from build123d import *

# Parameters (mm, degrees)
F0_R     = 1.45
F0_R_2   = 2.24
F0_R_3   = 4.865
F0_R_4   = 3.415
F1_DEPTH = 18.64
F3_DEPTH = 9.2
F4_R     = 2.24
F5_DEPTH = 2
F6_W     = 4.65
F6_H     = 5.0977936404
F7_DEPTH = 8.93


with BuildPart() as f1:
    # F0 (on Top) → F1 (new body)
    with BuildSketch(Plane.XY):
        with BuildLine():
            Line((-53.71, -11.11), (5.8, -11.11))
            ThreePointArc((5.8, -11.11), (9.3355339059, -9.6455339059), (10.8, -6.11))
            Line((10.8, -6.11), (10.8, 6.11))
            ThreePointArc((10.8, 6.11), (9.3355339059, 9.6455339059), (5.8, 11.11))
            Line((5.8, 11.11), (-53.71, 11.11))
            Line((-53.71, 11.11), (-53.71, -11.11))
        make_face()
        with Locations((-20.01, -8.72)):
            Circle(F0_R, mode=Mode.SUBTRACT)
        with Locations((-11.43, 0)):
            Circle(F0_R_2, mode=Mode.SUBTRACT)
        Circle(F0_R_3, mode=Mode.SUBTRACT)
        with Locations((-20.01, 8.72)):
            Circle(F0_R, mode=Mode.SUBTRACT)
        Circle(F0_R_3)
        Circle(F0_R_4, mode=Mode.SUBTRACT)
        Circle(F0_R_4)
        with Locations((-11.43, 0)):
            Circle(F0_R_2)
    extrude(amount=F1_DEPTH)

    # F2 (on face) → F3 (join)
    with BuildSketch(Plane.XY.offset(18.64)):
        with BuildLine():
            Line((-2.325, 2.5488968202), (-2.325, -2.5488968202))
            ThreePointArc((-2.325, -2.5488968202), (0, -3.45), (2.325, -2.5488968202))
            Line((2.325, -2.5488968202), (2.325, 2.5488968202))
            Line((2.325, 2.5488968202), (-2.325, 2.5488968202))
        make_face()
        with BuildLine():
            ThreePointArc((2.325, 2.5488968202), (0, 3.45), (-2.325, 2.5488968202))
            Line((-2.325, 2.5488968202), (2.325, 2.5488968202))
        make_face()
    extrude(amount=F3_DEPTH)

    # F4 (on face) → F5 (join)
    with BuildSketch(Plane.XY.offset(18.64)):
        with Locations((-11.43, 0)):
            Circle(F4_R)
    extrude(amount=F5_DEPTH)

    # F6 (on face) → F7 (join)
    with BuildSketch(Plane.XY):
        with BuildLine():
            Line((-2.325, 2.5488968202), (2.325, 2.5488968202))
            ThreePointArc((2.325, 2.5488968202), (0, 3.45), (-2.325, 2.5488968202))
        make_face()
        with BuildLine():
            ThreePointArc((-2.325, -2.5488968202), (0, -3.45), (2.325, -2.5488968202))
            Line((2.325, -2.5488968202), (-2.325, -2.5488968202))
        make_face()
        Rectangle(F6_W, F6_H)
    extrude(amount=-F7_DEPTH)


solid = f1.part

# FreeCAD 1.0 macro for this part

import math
import FreeCAD as App
import Part
import Sketcher

doc = App.newDocument("Part")
params = doc.addObject("Spreadsheet::Sheet", "Params")
for row, (alias, value) in enumerate([
    ("sketch1_radius", "5 mm"),
    ("sketch1_diameter", "2.9 mm"),
    ("sketch1_width", "59.51 mm"),
    ("sketch1_height", "12.22 mm"),
    ("pad1_length", "18.64 mm"),
    ("sketch2_radius", "3.45 mm"),
    ("pad2_length", "9.2 mm"),
    ("sketch3_diameter", "4.48 mm"),
    ("pad3_length", "2 mm"),
    ("sketch4_radius", "3.45 mm"),
    ("pad4_length", "8.93 mm"),
], start=1):
    params.set(f"A{row}", alias)
    params.set(f"B{row}", "=" + value)
    params.setAlias(f"B{row}", alias)

body = doc.addObject("PartDesign::Body", "Body")

sketch1 = body.newObject("Sketcher::SketchObject", "Sketch")
sketch1.AttachmentSupport = (doc.getObject("XY_Plane"), [""])
sketch1.MapMode = "FlatFace"
sketch1.addGeometry(Part.LineSegment(App.Vector(-53.7, -11.1, 0), App.Vector(5.8, -11.1, 0)), False)
sketch1.addGeometry(Part.ArcOfCircle(Part.Circle(App.Vector(5.8, -6.1, 0), App.Vector(0, 0, 1), 5), math.radians(-90), math.radians(0)), False)
sketch1.addGeometry(Part.LineSegment(App.Vector(10.8, -6.1, 0), App.Vector(10.8, 6.1, 0)), False)
sketch1.addGeometry(Part.ArcOfCircle(Part.Circle(App.Vector(5.8, 6.1, 0), App.Vector(0, 0, 1), 5), math.radians(0), math.radians(90)), False)
sketch1.addGeometry(Part.LineSegment(App.Vector(5.8, 11.1, 0), App.Vector(-53.7, 11.1, 0)), False)
sketch1.addGeometry(Part.LineSegment(App.Vector(-53.7, 11.1, 0), App.Vector(-53.7, -11.1, 0)), False)
sketch1.addGeometry(Part.Circle(App.Vector(-20, -8.7, 0), App.Vector(0, 0, 1), 1.4), False)
sketch1.addGeometry(Part.Circle(App.Vector(-20, 8.7, 0), App.Vector(0, 0, 1), 1.4), False)
sketch1.addConstraint(Sketcher.Constraint("Tangent", 0, 2, 1, 1))
sketch1.addConstraint(Sketcher.Constraint("Tangent", 1, 2, 2, 1))
sketch1.addConstraint(Sketcher.Constraint("Tangent", 2, 2, 3, 1))
sketch1.addConstraint(Sketcher.Constraint("Tangent", 3, 2, 4, 1))
sketch1.addConstraint(Sketcher.Constraint("Coincident", 4, 2, 5, 1))
sketch1.addConstraint(Sketcher.Constraint("Coincident", 5, 2, 0, 1))
sketch1.addConstraint(Sketcher.Constraint("Horizontal", 0))
sketch1.addConstraint(Sketcher.Constraint("Vertical", 2))
sketch1.addConstraint(Sketcher.Constraint("Horizontal", 4))
sketch1.addConstraint(Sketcher.Constraint("Vertical", 5))
sketch1.addConstraint(Sketcher.Constraint("Equal", 1, 3))
sketch1.addConstraint(Sketcher.Constraint("Equal", 6, 7))
sketch1.addConstraint(Sketcher.Constraint("Symmetric", 6, 3, 7, 3, -1))
sketch1.addConstraint(Sketcher.Constraint("Radius", 1, 5.0))
sketch1.addConstraint(Sketcher.Constraint("Diameter", 6, 2.9))
sketch1.addConstraint(Sketcher.Constraint("DistanceX", 0, 1, 0, 2, 59.51))
sketch1.addConstraint(Sketcher.Constraint("DistanceY", 2, 1, 2, 2, 12.22))
sketch1.addConstraint(Sketcher.Constraint("DistanceX", -1, 1, 1, 3, 5.8))
sketch1.addConstraint(Sketcher.Constraint("DistanceX", 4, 2, 7, 3, 33.7))
sketch1.addConstraint(Sketcher.Constraint("DistanceY", 1, 3, -1, 1, 6.11))
sketch1.addConstraint(Sketcher.Constraint("DistanceY", 6, 3, -1, 1, 8.72))
sketch1.setExpression("Constraints[13]", "Params.sketch1_radius")
sketch1.setExpression("Constraints[14]", "Params.sketch1_diameter")
sketch1.setExpression("Constraints[15]", "Params.sketch1_width")
sketch1.setExpression("Constraints[16]", "Params.sketch1_height")
pad1 = body.newObject("PartDesign::Pad", "Pad")
pad1.Profile = sketch1
pad1.setExpression("Length", "Params.pad1_length")

sketch2 = body.newObject("Sketcher::SketchObject", "Sketch001")
sketch2.AttachmentSupport = (doc.getObject("XY_Plane"), [""])
sketch2.MapMode = "FlatFace"
sketch2.AttachmentOffset = App.Placement(App.Vector(0, 0, 18.64), App.Rotation())
sketch2.addGeometry(Part.LineSegment(App.Vector(-2.3, 2.5, 0), App.Vector(-2.3, -2.5, 0)), False)
sketch2.addGeometry(Part.ArcOfCircle(Part.Circle(App.Vector(0, 0, 0), App.Vector(0, 0, 1), 3.5), math.radians(-132), math.radians(-48)), False)
sketch2.addGeometry(Part.LineSegment(App.Vector(2.3, -2.5, 0), App.Vector(2.3, 2.5, 0)), False)
sketch2.addGeometry(Part.ArcOfCircle(Part.Circle(App.Vector(0, 0, 0), App.Vector(0, 0, 1), 3.5), math.radians(48), math.radians(132)), False)
sketch2.addConstraint(Sketcher.Constraint("Coincident", 0, 2, 1, 1))
sketch2.addConstraint(Sketcher.Constraint("Coincident", 1, 2, 2, 1))
sketch2.addConstraint(Sketcher.Constraint("Coincident", 2, 2, 3, 1))
sketch2.addConstraint(Sketcher.Constraint("Coincident", 3, 2, 0, 1))
sketch2.addConstraint(Sketcher.Constraint("Vertical", 0))
sketch2.addConstraint(Sketcher.Constraint("Vertical", 2))
sketch2.addConstraint(Sketcher.Constraint("Coincident", 1, 3, -1, 1))
sketch2.addConstraint(Sketcher.Constraint("Coincident", 3, 3, -1, 1))
sketch2.addConstraint(Sketcher.Constraint("Equal", 1, 3))
sketch2.addConstraint(Sketcher.Constraint("Horizontal", 0, 2, 1, 2))
sketch2.addConstraint(Sketcher.Constraint("Radius", 1, 3.45))
sketch2.addConstraint(Sketcher.Constraint("DistanceX", 0, 2, 1, 2, 4.65))
sketch2.setExpression("Constraints[10]", "Params.sketch2_radius")
pad2 = body.newObject("PartDesign::Pad", "Pad001")
pad2.Profile = sketch2
pad2.setExpression("Length", "Params.pad2_length")

sketch3 = body.newObject("Sketcher::SketchObject", "Sketch002")
sketch3.AttachmentSupport = (doc.getObject("XY_Plane"), [""])
sketch3.MapMode = "FlatFace"
sketch3.AttachmentOffset = App.Placement(App.Vector(0, 0, 18.64), App.Rotation())
sketch3.addGeometry(Part.Circle(App.Vector(-11.4, 0, 0), App.Vector(0, 0, 1), 2.2), False)
sketch3.addConstraint(Sketcher.Constraint("PointOnObject", 0, 3, -1))
sketch3.addConstraint(Sketcher.Constraint("Diameter", 0, 4.48))
sketch3.addConstraint(Sketcher.Constraint("DistanceX", 0, 3, -1, 1, 11.43))
sketch3.setExpression("Constraints[1]", "Params.sketch3_diameter")
pad3 = body.newObject("PartDesign::Pad", "Pad002")
pad3.Profile = sketch3
pad3.setExpression("Length", "Params.pad3_length")

sketch4 = body.newObject("Sketcher::SketchObject", "Sketch003")
sketch4.AttachmentSupport = (doc.getObject("XY_Plane"), [""])
sketch4.MapMode = "FlatFace"
sketch4.addGeometry(Part.ArcOfCircle(Part.Circle(App.Vector(0, 0, 0), App.Vector(0, 0, 1), 3.5), math.radians(48), math.radians(132)), False)
sketch4.addGeometry(Part.LineSegment(App.Vector(-2.3, 2.5, 0), App.Vector(-2.3, -2.5, 0)), False)
sketch4.addGeometry(Part.ArcOfCircle(Part.Circle(App.Vector(0, 0, 0), App.Vector(0, 0, 1), 3.5), math.radians(-132), math.radians(-48)), False)
sketch4.addGeometry(Part.LineSegment(App.Vector(2.3, -2.5, 0), App.Vector(2.3, 2.5, 0)), False)
sketch4.addConstraint(Sketcher.Constraint("Coincident", 0, 2, 1, 1))
sketch4.addConstraint(Sketcher.Constraint("Coincident", 1, 2, 2, 1))
sketch4.addConstraint(Sketcher.Constraint("Coincident", 2, 2, 3, 1))
sketch4.addConstraint(Sketcher.Constraint("Coincident", 3, 2, 0, 1))
sketch4.addConstraint(Sketcher.Constraint("Vertical", 1))
sketch4.addConstraint(Sketcher.Constraint("Vertical", 3))
sketch4.addConstraint(Sketcher.Constraint("Coincident", 0, 3, -1, 1))
sketch4.addConstraint(Sketcher.Constraint("Coincident", 2, 3, -1, 1))
sketch4.addConstraint(Sketcher.Constraint("Equal", 0, 2))
sketch4.addConstraint(Sketcher.Constraint("Horizontal", 1, 2, 2, 2))
sketch4.addConstraint(Sketcher.Constraint("Radius", 0, 3.45))
sketch4.addConstraint(Sketcher.Constraint("DistanceX", 1, 2, 2, 2, 4.65))
sketch4.setExpression("Constraints[10]", "Params.sketch4_radius")
pad4 = body.newObject("PartDesign::Pad", "Pad003")
pad4.Profile = sketch4
pad4.setExpression("Length", "Params.pad4_length")
pad4.Reversed = True

doc.recompute()
